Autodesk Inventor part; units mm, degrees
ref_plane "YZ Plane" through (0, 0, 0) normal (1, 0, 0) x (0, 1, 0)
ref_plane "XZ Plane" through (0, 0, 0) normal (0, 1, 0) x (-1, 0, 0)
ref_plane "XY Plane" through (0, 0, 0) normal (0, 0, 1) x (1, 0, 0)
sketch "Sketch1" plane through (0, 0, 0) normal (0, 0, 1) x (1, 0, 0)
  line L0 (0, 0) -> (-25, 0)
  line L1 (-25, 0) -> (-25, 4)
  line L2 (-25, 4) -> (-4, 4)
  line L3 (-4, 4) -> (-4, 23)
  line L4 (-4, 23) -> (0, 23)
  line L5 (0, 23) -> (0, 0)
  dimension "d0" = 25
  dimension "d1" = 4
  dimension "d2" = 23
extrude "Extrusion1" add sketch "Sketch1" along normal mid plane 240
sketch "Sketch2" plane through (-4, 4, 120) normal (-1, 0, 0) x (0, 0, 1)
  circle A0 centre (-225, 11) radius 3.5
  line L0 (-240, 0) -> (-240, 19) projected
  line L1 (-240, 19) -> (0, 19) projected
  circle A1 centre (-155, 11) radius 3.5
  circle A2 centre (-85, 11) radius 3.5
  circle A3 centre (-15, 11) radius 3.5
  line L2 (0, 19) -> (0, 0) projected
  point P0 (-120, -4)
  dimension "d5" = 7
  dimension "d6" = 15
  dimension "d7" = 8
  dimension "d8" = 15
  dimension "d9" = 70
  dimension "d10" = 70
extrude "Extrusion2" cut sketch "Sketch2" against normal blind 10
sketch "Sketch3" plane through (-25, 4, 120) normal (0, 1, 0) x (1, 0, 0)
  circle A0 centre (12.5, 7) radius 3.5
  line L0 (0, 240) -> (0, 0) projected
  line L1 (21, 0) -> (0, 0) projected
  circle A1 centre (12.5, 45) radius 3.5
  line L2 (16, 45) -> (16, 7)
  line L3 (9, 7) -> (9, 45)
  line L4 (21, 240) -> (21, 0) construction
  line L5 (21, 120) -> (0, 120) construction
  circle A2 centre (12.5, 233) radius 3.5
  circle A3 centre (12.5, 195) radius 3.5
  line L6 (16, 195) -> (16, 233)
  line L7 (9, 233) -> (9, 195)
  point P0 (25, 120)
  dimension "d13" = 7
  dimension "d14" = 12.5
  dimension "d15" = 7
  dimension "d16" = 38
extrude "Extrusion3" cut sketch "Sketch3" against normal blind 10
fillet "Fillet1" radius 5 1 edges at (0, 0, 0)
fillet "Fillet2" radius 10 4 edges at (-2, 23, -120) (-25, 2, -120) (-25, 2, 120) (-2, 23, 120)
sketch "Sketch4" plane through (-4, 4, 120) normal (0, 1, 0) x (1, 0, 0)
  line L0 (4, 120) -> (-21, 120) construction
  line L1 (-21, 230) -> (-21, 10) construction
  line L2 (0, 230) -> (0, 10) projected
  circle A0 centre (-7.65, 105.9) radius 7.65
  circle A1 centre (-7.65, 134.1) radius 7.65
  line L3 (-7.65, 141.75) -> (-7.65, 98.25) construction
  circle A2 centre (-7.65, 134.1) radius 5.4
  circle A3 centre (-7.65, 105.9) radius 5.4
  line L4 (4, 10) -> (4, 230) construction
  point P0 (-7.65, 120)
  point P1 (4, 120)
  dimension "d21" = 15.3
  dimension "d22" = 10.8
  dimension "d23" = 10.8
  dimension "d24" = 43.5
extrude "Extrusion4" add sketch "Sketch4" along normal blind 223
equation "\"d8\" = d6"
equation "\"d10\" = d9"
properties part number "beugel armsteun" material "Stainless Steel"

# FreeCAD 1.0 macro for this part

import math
import FreeCAD as App
import Part
import Sketcher


def edges_at(feature, points):
    """Names of the edges that pass closest to the given points."""
    edges = feature.Shape.Edges
    near = lambda p: min(range(len(edges)), key=lambda i: edges[i].distToShape(Part.Vertex(*p))[0])
    return sorted({f"Edge{near(p) + 1}" for p in points})

doc = App.newDocument("Part")
body = doc.addObject("PartDesign::Body", "Body")

# Sketch on XY plane
sketch1 = doc.addObject("Sketcher::SketchObject", "Sketch")
body.addObject(sketch1)
sketch1.AttachmentSupport = (doc.XY_Plane, [""])
sketch1.MapMode = "FlatFace"
sketch1.addGeometry([
    Part.LineSegment(App.Vector(-25, 0, 0), App.Vector(0, 0, 0)),  # 0
    Part.LineSegment(App.Vector(0, 0, 0), App.Vector(0, 23, 0)),  # 1
    Part.LineSegment(App.Vector(0, 23, 0), App.Vector(-4, 23, 0)),  # 2
    Part.LineSegment(App.Vector(-4, 23, 0), App.Vector(-4, 4, 0)),  # 3
    Part.LineSegment(App.Vector(-4, 4, 0), App.Vector(-25, 4, 0)),  # 4
    Part.LineSegment(App.Vector(-25, 4, 0), App.Vector(-25, 0, 0)),  # 5
], False)
sketch1.addConstraint([
    Sketcher.Constraint("Coincident", 0, 2, 1, 1),
    Sketcher.Constraint("Coincident", 1, 2, 2, 1),
    Sketcher.Constraint("Coincident", 2, 2, 3, 1),
    Sketcher.Constraint("Coincident", 3, 2, 4, 1),
    Sketcher.Constraint("Coincident", 4, 2, 5, 1),
    Sketcher.Constraint("Coincident", 5, 2, 0, 1),
    Sketcher.Constraint("Horizontal", 0),
    Sketcher.Constraint("Vertical", 1),
    Sketcher.Constraint("Horizontal", 2),
    Sketcher.Constraint("Vertical", 3),
    Sketcher.Constraint("Horizontal", 4),
    Sketcher.Constraint("Vertical", 5),
    Sketcher.Constraint("Coincident", 0, 2, -1, 1),
    Sketcher.Constraint("Equal", 2, 5),
    Sketcher.Constraint("DistanceX", 0, 1, 0, 2, 25.0),
    Sketcher.Constraint("DistanceX", 2, 2, 2, 1, 4.0),
    Sketcher.Constraint("DistanceY", 1, 1, 1, 2, 23.0),
])
pad1 = doc.addObject("PartDesign::Pad", "Pad")
body.addObject(pad1)
pad1.Profile = sketch1
pad1.Length = 240
pad1.Midplane = True

# Sketch on YZ plane
sketch2 = doc.addObject("Sketcher::SketchObject", "Sketch001")
body.addObject(sketch2)
sketch2.AttachmentSupport = (doc.YZ_Plane, [""])
sketch2.MapMode = "FlatFace"
sketch2.AttachmentOffset = App.Placement(App.Vector(0, 0, -4), App.Rotation())
sketch2.addGeometry([
    Part.Circle(App.Vector(15, -105, 0), App.Vector(0, 0, 1), 3.5),
    Part.Circle(App.Vector(15, -35, 0), App.Vector(0, 0, 1), 3.5),
    Part.Circle(App.Vector(15, 35, 0), App.Vector(0, 0, 1), 3.5),
    Part.Circle(App.Vector(15, 105, 0), App.Vector(0, 0, 1), 3.5),
], False)
sketch2.addConstraint([
    Sketcher.Constraint("Equal", 0, 1),
    Sketcher.Constraint("Equal", 1, 2),
    Sketcher.Constraint("Equal", 2, 3),
    Sketcher.Constraint("Symmetric", 1, 3, 2, 3, -1),
    Sketcher.Constraint("Symmetric", 0, 3, 3, 3, -1),
    Sketcher.Constraint("Vertical", 0, 3, 1, 3),
    Sketcher.Constraint("Diameter", 0, 7.0),
    Sketcher.Constraint("DistanceX", -1, 1, 0, 3, 15.0),
    Sketcher.Constraint("DistanceY", 0, 3, 1, 3, 70.0),
    Sketcher.Constraint("DistanceY", 1, 3, 2, 3, 70.0),
])
pocket1 = doc.addObject("PartDesign::Pocket", "Pocket")
body.addObject(pocket1)
pocket1.Profile = sketch2
pocket1.Length = 10
pocket1.Reversed = True

# Sketch on XZ plane
sketch3 = doc.addObject("Sketcher::SketchObject", "Sketch002")
body.addObject(sketch3)
sketch3.AttachmentSupport = (doc.XZ_Plane, [""])
sketch3.MapMode = "FlatFace"
sketch3.AttachmentOffset = App.Placement(App.Vector(0, 0, -4), App.Rotation())
sketch3.addGeometry([
    Part.ArcOfCircle(Part.Circle(App.Vector(-12.5, 113, 0), App.Vector(0, 0, 1), 3.5), math.radians(0), math.radians(180)),  # 0
    Part.LineSegment(App.Vector(-9, 113, 0), App.Vector(-9, 75, 0)),  # 1
    Part.ArcOfCircle(Part.Circle(App.Vector(-12.5, 75, 0), App.Vector(0, 0, 1), 3.5), math.radians(180), math.radians(360)),  # 2
    Part.LineSegment(App.Vector(-16, 75, 0), App.Vector(-16, 113, 0)),  # 3
    Part.ArcOfCircle(Part.Circle(App.Vector(-12.5, -113, 0), App.Vector(0, 0, 1), 3.5), math.radians(180), math.radians(360)),  # 4
    Part.LineSegment(App.Vector(-16, -113, 0), App.Vector(-16, -75, 0)),  # 5
    Part.ArcOfCircle(Part.Circle(App.Vector(-12.5, -75, 0), App.Vector(0, 0, 1), 3.5), math.radians(0), math.radians(180)),  # 6
    Part.LineSegment(App.Vector(-9, -75, 0), App.Vector(-9, -113, 0)),  # 7
], False)
sketch3.addConstraint([
    Sketcher.Constraint("Tangent", 0, 1, 1, 1),
    Sketcher.Constraint("Tangent", 1, 2, 2, 2),
    Sketcher.Constraint("Tangent", 2, 1, 3, 1),
    Sketcher.Constraint("Tangent", 3, 2, 0, 2),
    Sketcher.Constraint("Tangent", 4, 1, 5, 1),
    Sketcher.Constraint("Tangent", 5, 2, 6, 2),
    Sketcher.Constraint("Tangent", 6, 1, 7, 1),
    Sketcher.Constraint("Tangent", 7, 2, 4, 2),
    Sketcher.Constraint("Vertical", 1),
    Sketcher.Constraint("Vertical", 3),
    Sketcher.Constraint("Vertical", 5),
    Sketcher.Constraint("Vertical", 7),
    Sketcher.Constraint("Equal", 2, 4),
    Sketcher.Constraint("Symmetric", 0, 3, 4, 3, -1),
    Sketcher.Constraint("Equal", 3, 5),
    Sketcher.Constraint("Radius", 0, 3.5),
    Sketcher.Constraint("DistanceY", 1, 2, 1, 1, 38.0),
    Sketcher.Constraint("DistanceX", 0, 3, -1, 1, 12.5),
    Sketcher.Constraint("DistanceY", -1, 1, 0, 3, 113.0),
])
pocket2 = doc.addObject("PartDesign::Pocket", "Pocket001")
body.addObject(pocket2)
pocket2.Profile = sketch3
pocket2.Length = 10
pocket2.Reversed = True
doc.recompute()

fillet = doc.addObject("PartDesign::Fillet", "Fillet")
body.addObject(fillet)
fillet.Base = (pocket2, edges_at(pocket2, [(0, 0, 0)]))
fillet.Radius = 5
doc.recompute()

fillet2 = doc.addObject("PartDesign::Fillet", "Fillet001")
body.addObject(fillet2)
fillet2.Base = (fillet, edges_at(fillet, [
    (-2, 23, -120),
    (-25, 2, -120),
    (-25, 2, 120),
    (-2, 23, 120),
]))
fillet2.Radius = 10

# Sketch on XZ plane
sketch4 = doc.addObject("Sketcher::SketchObject", "Sketch003")
body.addObject(sketch4)
sketch4.AttachmentSupport = (doc.XZ_Plane, [""])
sketch4.MapMode = "FlatFace"
sketch4.AttachmentOffset = App.Placement(App.Vector(0, 0, -4), App.Rotation())
sketch4.addGeometry([
    Part.Circle(App.Vector(-12, 14, 0), App.Vector(0, 0, 1), 8),
    Part.Circle(App.Vector(-12, 14, 0), App.Vector(0, 0, 1), 5),
    Part.Circle(App.Vector(-12, -14, 0), App.Vector(0, 0, 1), 8),
    Part.Circle(App.Vector(-12, -14, 0), App.Vector(0, 0, 1), 5),
], False)
sketch4.addConstraint([
    Sketcher.Constraint("Coincident", 1, 3, 0, 3),
    Sketcher.Constraint("Coincident", 3, 3, 2, 3),
    Sketcher.Constraint("Equal", 0, 2),
    Sketcher.Constraint("Equal", 1, 3),
    Sketcher.Constraint("Symmetric", 0, 3, 2, 3, -1),
    Sketcher.Constraint("Diameter", 0, 15.3),
    Sketcher.Constraint("Diameter", 1, 10.8),
    Sketcher.Constraint("DistanceY", -1, 1, 0, 3, 14.1),
    Sketcher.Constraint("DistanceX", 0, 3, -1, 1, 11.65),
])
pad2 = doc.addObject("PartDesign::Pad", "Pad001")
body.addObject(pad2)
pad2.Profile = sketch4
pad2.Length = 223
pad2.Reversed = True

doc.recompute()
